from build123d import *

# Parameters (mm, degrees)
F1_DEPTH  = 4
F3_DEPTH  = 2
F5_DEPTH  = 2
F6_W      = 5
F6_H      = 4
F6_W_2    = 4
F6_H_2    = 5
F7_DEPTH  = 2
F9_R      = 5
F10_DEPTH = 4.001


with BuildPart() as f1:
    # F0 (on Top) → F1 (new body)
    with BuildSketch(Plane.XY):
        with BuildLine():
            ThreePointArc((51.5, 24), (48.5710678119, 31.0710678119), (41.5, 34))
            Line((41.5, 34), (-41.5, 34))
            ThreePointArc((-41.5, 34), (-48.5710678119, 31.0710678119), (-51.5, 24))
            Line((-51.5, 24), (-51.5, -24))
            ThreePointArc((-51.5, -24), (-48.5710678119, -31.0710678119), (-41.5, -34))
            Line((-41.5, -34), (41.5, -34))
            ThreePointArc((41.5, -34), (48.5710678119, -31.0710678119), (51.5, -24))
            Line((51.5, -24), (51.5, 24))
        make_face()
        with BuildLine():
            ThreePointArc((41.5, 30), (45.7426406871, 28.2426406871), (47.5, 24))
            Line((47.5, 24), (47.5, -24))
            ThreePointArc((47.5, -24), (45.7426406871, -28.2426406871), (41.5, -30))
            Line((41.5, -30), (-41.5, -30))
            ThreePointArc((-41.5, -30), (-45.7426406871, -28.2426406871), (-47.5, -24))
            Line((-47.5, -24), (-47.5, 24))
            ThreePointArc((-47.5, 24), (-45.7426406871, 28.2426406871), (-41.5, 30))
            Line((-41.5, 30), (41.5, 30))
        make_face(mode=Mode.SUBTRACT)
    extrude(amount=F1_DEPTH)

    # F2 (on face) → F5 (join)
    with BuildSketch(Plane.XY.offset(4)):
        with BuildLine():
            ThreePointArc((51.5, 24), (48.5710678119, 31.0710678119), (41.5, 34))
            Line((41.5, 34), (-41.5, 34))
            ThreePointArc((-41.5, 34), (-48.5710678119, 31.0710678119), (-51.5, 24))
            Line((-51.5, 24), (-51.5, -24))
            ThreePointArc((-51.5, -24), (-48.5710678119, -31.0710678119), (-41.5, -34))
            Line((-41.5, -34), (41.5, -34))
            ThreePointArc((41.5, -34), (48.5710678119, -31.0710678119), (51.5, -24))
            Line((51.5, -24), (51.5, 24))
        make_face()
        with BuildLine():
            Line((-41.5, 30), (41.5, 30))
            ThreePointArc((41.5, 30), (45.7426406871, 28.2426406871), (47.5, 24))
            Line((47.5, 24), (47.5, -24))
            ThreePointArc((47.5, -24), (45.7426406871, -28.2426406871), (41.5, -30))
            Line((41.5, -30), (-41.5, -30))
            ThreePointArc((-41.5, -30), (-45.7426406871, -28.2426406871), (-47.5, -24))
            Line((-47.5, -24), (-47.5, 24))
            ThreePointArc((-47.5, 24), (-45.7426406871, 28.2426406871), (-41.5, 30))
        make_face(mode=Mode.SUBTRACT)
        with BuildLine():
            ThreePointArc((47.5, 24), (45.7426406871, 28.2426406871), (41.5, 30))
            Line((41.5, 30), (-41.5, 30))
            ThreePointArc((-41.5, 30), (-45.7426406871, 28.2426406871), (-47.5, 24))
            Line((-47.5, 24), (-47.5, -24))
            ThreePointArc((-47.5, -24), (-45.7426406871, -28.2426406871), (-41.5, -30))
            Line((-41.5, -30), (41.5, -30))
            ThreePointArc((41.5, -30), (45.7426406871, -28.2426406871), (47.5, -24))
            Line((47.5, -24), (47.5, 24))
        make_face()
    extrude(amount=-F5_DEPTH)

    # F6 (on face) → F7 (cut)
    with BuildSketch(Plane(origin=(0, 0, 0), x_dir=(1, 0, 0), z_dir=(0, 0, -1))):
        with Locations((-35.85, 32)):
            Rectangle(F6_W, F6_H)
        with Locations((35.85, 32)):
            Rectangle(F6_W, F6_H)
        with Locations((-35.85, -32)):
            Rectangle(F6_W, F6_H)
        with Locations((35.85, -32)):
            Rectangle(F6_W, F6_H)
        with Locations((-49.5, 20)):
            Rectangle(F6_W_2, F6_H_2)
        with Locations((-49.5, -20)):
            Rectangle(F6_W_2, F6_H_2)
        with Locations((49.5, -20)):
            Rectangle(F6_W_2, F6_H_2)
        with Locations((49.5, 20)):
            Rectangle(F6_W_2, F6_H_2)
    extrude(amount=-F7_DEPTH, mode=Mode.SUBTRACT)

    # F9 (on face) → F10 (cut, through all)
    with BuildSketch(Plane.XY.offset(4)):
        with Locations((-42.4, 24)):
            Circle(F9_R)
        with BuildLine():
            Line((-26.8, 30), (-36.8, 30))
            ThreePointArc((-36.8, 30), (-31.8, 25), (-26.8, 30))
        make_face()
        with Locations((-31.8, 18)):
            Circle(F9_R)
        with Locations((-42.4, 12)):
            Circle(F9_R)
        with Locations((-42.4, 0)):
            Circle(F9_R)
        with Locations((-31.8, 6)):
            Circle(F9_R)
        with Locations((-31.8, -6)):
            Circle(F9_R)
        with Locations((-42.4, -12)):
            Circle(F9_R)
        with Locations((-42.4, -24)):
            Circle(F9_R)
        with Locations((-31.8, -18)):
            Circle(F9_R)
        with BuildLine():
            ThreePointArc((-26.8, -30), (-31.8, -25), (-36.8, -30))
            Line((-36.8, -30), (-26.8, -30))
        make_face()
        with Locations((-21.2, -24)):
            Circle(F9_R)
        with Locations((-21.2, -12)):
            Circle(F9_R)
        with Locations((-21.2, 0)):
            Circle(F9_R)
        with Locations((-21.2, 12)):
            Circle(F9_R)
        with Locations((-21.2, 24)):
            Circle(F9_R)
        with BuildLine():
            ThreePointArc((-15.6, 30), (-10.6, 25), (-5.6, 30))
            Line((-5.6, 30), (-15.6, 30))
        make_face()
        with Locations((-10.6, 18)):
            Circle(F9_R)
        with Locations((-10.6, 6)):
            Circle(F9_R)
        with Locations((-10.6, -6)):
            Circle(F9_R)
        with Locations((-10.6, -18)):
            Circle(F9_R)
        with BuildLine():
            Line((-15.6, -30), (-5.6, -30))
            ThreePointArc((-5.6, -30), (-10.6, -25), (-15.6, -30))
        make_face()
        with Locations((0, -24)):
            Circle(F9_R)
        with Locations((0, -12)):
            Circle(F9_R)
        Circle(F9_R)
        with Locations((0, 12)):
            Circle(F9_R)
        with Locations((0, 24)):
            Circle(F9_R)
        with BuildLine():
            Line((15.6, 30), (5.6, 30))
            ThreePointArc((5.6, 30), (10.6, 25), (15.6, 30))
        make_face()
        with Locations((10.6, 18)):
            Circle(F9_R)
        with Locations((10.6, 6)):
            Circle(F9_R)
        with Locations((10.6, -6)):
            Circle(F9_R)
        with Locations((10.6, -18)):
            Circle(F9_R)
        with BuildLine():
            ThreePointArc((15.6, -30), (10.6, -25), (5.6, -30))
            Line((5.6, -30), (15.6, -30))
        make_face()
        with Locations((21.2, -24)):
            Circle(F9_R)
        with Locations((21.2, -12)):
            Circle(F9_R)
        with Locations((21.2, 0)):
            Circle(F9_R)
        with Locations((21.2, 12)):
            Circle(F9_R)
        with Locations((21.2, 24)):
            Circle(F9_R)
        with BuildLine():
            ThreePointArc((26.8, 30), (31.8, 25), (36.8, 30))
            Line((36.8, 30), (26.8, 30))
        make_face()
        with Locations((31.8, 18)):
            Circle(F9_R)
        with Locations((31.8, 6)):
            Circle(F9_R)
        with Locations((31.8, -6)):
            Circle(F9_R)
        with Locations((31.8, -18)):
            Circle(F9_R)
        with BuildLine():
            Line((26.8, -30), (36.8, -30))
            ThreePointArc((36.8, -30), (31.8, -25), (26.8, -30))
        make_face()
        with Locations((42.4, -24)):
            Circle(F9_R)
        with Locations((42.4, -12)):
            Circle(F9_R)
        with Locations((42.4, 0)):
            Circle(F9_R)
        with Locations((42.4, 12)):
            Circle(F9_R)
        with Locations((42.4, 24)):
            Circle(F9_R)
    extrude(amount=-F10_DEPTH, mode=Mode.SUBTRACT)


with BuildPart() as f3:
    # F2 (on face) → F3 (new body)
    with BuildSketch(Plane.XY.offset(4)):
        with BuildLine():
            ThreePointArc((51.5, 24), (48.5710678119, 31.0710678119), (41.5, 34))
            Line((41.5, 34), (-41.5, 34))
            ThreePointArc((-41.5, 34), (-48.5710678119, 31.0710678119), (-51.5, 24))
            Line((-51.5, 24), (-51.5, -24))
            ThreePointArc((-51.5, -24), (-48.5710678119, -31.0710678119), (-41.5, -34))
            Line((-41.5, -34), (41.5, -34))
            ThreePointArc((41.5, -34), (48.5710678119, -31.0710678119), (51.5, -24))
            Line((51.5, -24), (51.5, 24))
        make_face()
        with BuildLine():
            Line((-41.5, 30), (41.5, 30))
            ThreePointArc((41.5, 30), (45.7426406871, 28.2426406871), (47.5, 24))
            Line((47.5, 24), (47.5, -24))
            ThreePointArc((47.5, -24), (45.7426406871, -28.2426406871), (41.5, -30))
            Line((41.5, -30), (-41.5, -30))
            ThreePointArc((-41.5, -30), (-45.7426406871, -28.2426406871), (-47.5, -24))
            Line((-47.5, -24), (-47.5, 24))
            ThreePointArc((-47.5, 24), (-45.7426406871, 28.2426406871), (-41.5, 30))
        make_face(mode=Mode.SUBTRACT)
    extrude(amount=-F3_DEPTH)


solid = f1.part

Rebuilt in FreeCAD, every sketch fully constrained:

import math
import FreeCAD as App
import Part
import Sketcher
Q = App.Units.Quantity


def add_polygon(sketch, points):
    """Adds a closed chain of lines whose ends are joined by coincident constraints."""
    first, n = sketch.GeometryCount, len(points)
    for a, b in zip(points, points[1:] + points[:1]):
        sketch.addGeometry(Part.LineSegment(App.Vector(*a, 0), App.Vector(*b, 0)), False)
    for i in range(n):
        sketch.addConstraint(Sketcher.Constraint("Coincident", first + i, 2, first + (i + 1) % n, 1))

doc = App.newDocument("Part")
body = doc.addObject("PartDesign::Body", "Body")

# Sketch on XY plane
sketch1 = body.newObject("Sketcher::SketchObject", "Sketch")
sketch1.AttachmentSupport = (doc.getObject("XY_Plane"), [""])
sketch1.MapMode = "FlatFace"
sketch1.addGeometry(Part.ArcOfCircle(Part.Circle(App.Vector(42, 24, 0), App.Vector(0, 0, 1), 10), math.radians(0), math.radians(90)), False)
sketch1.addGeometry(Part.LineSegment(App.Vector(42, 34, 0), App.Vector(-42, 34, 0)), False)
sketch1.addGeometry(Part.ArcOfCircle(Part.Circle(App.Vector(-42, 24, 0), App.Vector(0, 0, 1), 10), math.radians(90), math.radians(180)), False)
sketch1.addGeometry(Part.LineSegment(App.Vector(-52, 24, 0), App.Vector(-52, -24, 0)), False)
sketch1.addGeometry(Part.ArcOfCircle(Part.Circle(App.Vector(-42, -24, 0), App.Vector(0, 0, 1), 10), math.radians(180), math.radians(270)), False)
sketch1.addGeometry(Part.LineSegment(App.Vector(-42, -34, 0), App.Vector(42, -34, 0)), False)
sketch1.addGeometry(Part.ArcOfCircle(Part.Circle(App.Vector(42, -24, 0), App.Vector(0, 0, 1), 10), math.radians(-90), math.radians(0)), False)
sketch1.addGeometry(Part.LineSegment(App.Vector(52, -24, 0), App.Vector(52, 24, 0)), False)
sketch1.addGeometry(Part.LineSegment(App.Vector(-42, 30, 0), App.Vector(42, 30, 0)), False)
sketch1.addGeometry(Part.ArcOfCircle(Part.Circle(App.Vector(42, 24, 0), App.Vector(0, 0, 1), 6), math.radians(0), math.radians(90)), False)
sketch1.addGeometry(Part.LineSegment(App.Vector(48, 24, 0), App.Vector(48, -24, 0)), False)
sketch1.addGeometry(Part.ArcOfCircle(Part.Circle(App.Vector(42, -24, 0), App.Vector(0, 0, 1), 6), math.radians(-90), math.radians(0)), False)
sketch1.addGeometry(Part.LineSegment(App.Vector(42, -30, 0), App.Vector(-42, -30, 0)), False)
sketch1.addGeometry(Part.ArcOfCircle(Part.Circle(App.Vector(-42, -24, 0), App.Vector(0, 0, 1), 6), math.radians(180), math.radians(270)), False)
sketch1.addGeometry(Part.LineSegment(App.Vector(-48, -24, 0), App.Vector(-48, 24, 0)), False)
sketch1.addGeometry(Part.ArcOfCircle(Part.Circle(App.Vector(-42, 24, 0), App.Vector(0, 0, 1), 6), math.radians(90), math.radians(180)), False)
sketch1.addConstraint(Sketcher.Constraint("Tangent", 0, 2, 1, 1))
sketch1.addConstraint(Sketcher.Constraint("Tangent", 1, 2, 2, 1))
sketch1.addConstraint(Sketcher.Constraint("Tangent", 2, 2, 3, 1))
sketch1.addConstraint(Sketcher.Constraint("Tangent", 3, 2, 4, 1))
sketch1.addConstraint(Sketcher.Constraint("Tangent", 4, 2, 5, 1))
sketch1.addConstraint(Sketcher.Constraint("Tangent", 5, 2, 6, 1))
sketch1.addConstraint(Sketcher.Constraint("Tangent", 6, 2, 7, 1))
sketch1.addConstraint(Sketcher.Constraint("Tangent", 7, 2, 0, 1))
sketch1.addConstraint(Sketcher.Constraint("Tangent", 8, 2, 9, 2))
sketch1.addConstraint(Sketcher.Constraint("Tangent", 9, 1, 10, 1))
sketch1.addConstraint(Sketcher.Constraint("Tangent", 10, 2, 11, 2))
sketch1.addConstraint(Sketcher.Constraint("Tangent", 11, 1, 12, 1))
sketch1.addConstraint(Sketcher.Constraint("Tangent", 12, 2, 13, 2))
sketch1.addConstraint(Sketcher.Constraint("Tangent", 13, 1, 14, 1))
sketch1.addConstraint(Sketcher.Constraint("Tangent", 14, 2, 15, 2))
sketch1.addConstraint(Sketcher.Constraint("Tangent", 15, 1, 8, 1))
sketch1.addConstraint(Sketcher.Constraint("Horizontal", 1))
sketch1.addConstraint(Sketcher.Constraint("Vertical", 3))
sketch1.addConstraint(Sketcher.Constraint("Horizontal", 5))
sketch1.addConstraint(Sketcher.Constraint("Vertical", 7))
sketch1.addConstraint(Sketcher.Constraint("Horizontal", 8))
sketch1.addConstraint(Sketcher.Constraint("Vertical", 10))
sketch1.addConstraint(Sketcher.Constraint("Horizontal", 12))
sketch1.addConstraint(Sketcher.Constraint("Vertical", 14))
sketch1.addConstraint(Sketcher.Constraint("Coincident", 9, 3, 0, 3))
sketch1.addConstraint(Sketcher.Constraint("Coincident", 11, 3, 6, 3))
sketch1.addConstraint(Sketcher.Constraint("Coincident", 13, 3, 4, 3))
sketch1.addConstraint(Sketcher.Constraint("Equal", 0, 2))
sketch1.addConstraint(Sketcher.Constraint("Equal", 2, 4))
sketch1.addConstraint(Sketcher.Constraint("Equal", 4, 6))
sketch1.addConstraint(Sketcher.Constraint("Equal", 13, 15))
sketch1.addConstraint(Sketcher.Constraint("Symmetric", 0, 3, 4, 3, -1, 1))
sketch1.addConstraint(Sketcher.Constraint("Radius", 0, Q("10 mm")))
sketch1.addConstraint(Sketcher.Constraint("Radius", 9, Q("6 mm")))
sketch1.addConstraint(Sketcher.Constraint("DistanceX", 1, 2, 1, 1, Q("83 mm")))
sketch1.addConstraint(Sketcher.Constraint("DistanceY", 3, 2, 3, 1, Q("48 mm")))
pad1 = body.newObject("PartDesign::Pad", "Pad")
pad1.Profile = sketch1
pad1.Length = 4

# Sketch on XY plane
sketch2 = body.newObject("Sketcher::SketchObject", "Sketch001")
sketch2.AttachmentSupport = (doc.getObject("XY_Plane"), [""])
sketch2.MapMode = "FlatFace"
sketch2.AttachmentOffset = App.Placement(App.Vector(0, 0, 4), App.Rotation())
sketch2.addGeometry(Part.ArcOfCircle(Part.Circle(App.Vector(42, 24, 0), App.Vector(0, 0, 1), 10), math.radians(0), math.radians(90)), False)
sketch2.addGeometry(Part.LineSegment(App.Vector(42, 34, 0), App.Vector(-42, 34, 0)), False)
sketch2.addGeometry(Part.ArcOfCircle(Part.Circle(App.Vector(-42, 24, 0), App.Vector(0, 0, 1), 10), math.radians(90), math.radians(180)), False)
sketch2.addGeometry(Part.LineSegment(App.Vector(-52, 24, 0), App.Vector(-52, -24, 0)), False)
sketch2.addGeometry(Part.ArcOfCircle(Part.Circle(App.Vector(-42, -24, 0), App.Vector(0, 0, 1), 10), math.radians(180), math.radians(270)), False)
sketch2.addGeometry(Part.LineSegment(App.Vector(-42, -34, 0), App.Vector(42, -34, 0)), False)
sketch2.addGeometry(Part.ArcOfCircle(Part.Circle(App.Vector(42, -24, 0), App.Vector(0, 0, 1), 10), math.radians(-90), math.radians(0)), False)
sketch2.addGeometry(Part.LineSegment(App.Vector(52, -24, 0), App.Vector(52, 24, 0)), False)
sketch2.addConstraint(Sketcher.Constraint("Tangent", 0, 2, 1, 1))
sketch2.addConstraint(Sketcher.Constraint("Tangent", 1, 2, 2, 1))
sketch2.addConstraint(Sketcher.Constraint("Tangent", 2, 2, 3, 1))
sketch2.addConstraint(Sketcher.Constraint("Tangent", 3, 2, 4, 1))
sketch2.addConstraint(Sketcher.Constraint("Tangent", 4, 2, 5, 1))
sketch2.addConstraint(Sketcher.Constraint("Tangent", 5, 2, 6, 1))
sketch2.addConstraint(Sketcher.Constraint("Tangent", 6, 2, 7, 1))
sketch2.addConstraint(Sketcher.Constraint("Tangent", 7, 2, 0, 1))
sketch2.addConstraint(Sketcher.Constraint("Horizontal", 1))
sketch2.addConstraint(Sketcher.Constraint("Vertical", 3))
sketch2.addConstraint(Sketcher.Constraint("Horizontal", 5))
sketch2.addConstraint(Sketcher.Constraint("Vertical", 7))
sketch2.addConstraint(Sketcher.Constraint("Equal", 0, 2))
sketch2.addConstraint(Sketcher.Constraint("Equal", 2, 4))
sketch2.addConstraint(Sketcher.Constraint("Equal", 4, 6))
sketch2.addConstraint(Sketcher.Constraint("Symmetric", 0, 3, 4, 3, -1, 1))
sketch2.addConstraint(Sketcher.Constraint("Radius", 0, Q("10 mm")))
sketch2.addConstraint(Sketcher.Constraint("DistanceX", 1, 2, 1, 1, Q("83 mm")))
sketch2.addConstraint(Sketcher.Constraint("DistanceY", 3, 2, 3, 1, Q("48 mm")))
pad2 = body.newObject("PartDesign::Pad", "Pad001")
pad2.Profile = sketch2
pad2.Length = 2
pad2.Reversed = True

# Sketch on XY plane
sketch3 = body.newObject("Sketcher::SketchObject", "Sketch002")
sketch3.AttachmentSupport = (doc.getObject("XY_Plane"), [""])
sketch3.MapMode = "FlatFace"
add_polygon(sketch3, [(-38.4, -34), (-38.4, -30), (-33.4, -30), (-33.4, -34)])  # lines 0-3
add_polygon(sketch3, [(33.4, -34), (33.4, -30), (38.4, -30), (38.4, -34)])  # lines 4-7
add_polygon(sketch3, [(-38.4, 30), (-38.4, 34), (-33.4, 34), (-33.4, 30)])  # lines 8-11
add_polygon(sketch3, [(33.4, 30), (33.4, 34), (38.4, 34), (38.4, 30)])  # lines 12-15
add_polygon(sketch3, [(-51.5, -22.5), (-51.5, -17.5), (-47.5, -17.5), (-47.5, -22.5)])  # lines 16-19
add_polygon(sketch3, [(-51.5, 17.5), (-51.5, 22.5), (-47.5, 22.5), (-47.5, 17.5)])  # lines 20-23
add_polygon(sketch3, [(47.5, 17.5), (47.5, 22.5), (51.5, 22.5), (51.5, 17.5)])  # lines 24-27
add_polygon(sketch3, [(47.5, -22.5), (47.5, -17.5), (51.5, -17.5), (51.5, -22.5)])  # lines 28-31
sketch3.addConstraint(Sketcher.Constraint("Vertical", 0))
sketch3.addConstraint(Sketcher.Constraint("Horizontal", 1))
sketch3.addConstraint(Sketcher.Constraint("Vertical", 2))
sketch3.addConstraint(Sketcher.Constraint("Horizontal", 3))
sketch3.addConstraint(Sketcher.Constraint("Vertical", 4))
sketch3.addConstraint(Sketcher.Constraint("Horizontal", 5))
sketch3.addConstraint(Sketcher.Constraint("Vertical", 6))
sketch3.addConstraint(Sketcher.Constraint("Horizontal", 7))
sketch3.addConstraint(Sketcher.Constraint("Vertical", 8))
sketch3.addConstraint(Sketcher.Constraint("Horizontal", 9))
sketch3.addConstraint(Sketcher.Constraint("Vertical", 10))
sketch3.addConstraint(Sketcher.Constraint("Horizontal", 11))
sketch3.addConstraint(Sketcher.Constraint("Vertical", 12))
sketch3.addConstraint(Sketcher.Constraint("Horizontal", 13))
sketch3.addConstraint(Sketcher.Constraint("Vertical", 14))
sketch3.addConstraint(Sketcher.Constraint("Horizontal", 15))
sketch3.addConstraint(Sketcher.Constraint("Vertical", 16))
sketch3.addConstraint(Sketcher.Constraint("Horizontal", 17))
sketch3.addConstraint(Sketcher.Constraint("Vertical", 18))
sketch3.addConstraint(Sketcher.Constraint("Horizontal", 19))
sketch3.addConstraint(Sketcher.Constraint("Vertical", 20))
sketch3.addConstraint(Sketcher.Constraint("Horizontal", 21))
sketch3.addConstraint(Sketcher.Constraint("Vertical", 22))
sketch3.addConstraint(Sketcher.Constraint("Horizontal", 23))
sketch3.addConstraint(Sketcher.Constraint("Vertical", 24))
sketch3.addConstraint(Sketcher.Constraint("Horizontal", 25))
sketch3.addConstraint(Sketcher.Constraint("Vertical", 26))
sketch3.addConstraint(Sketcher.Constraint("Horizontal", 27))
sketch3.addConstraint(Sketcher.Constraint("Vertical", 28))
sketch3.addConstraint(Sketcher.Constraint("Horizontal", 29))
sketch3.addConstraint(Sketcher.Constraint("Vertical", 30))
sketch3.addConstraint(Sketcher.Constraint("Horizontal", 31))
sketch3.addConstraint(Sketcher.Constraint("Symmetric", 6, 2, 8, 2, -1, 1))
sketch3.addConstraint(Sketcher.Constraint("Symmetric", 4, 2, 10, 2, -1, 1))
sketch3.addConstraint(Sketcher.Constraint("Symmetric", 2, 2, 12, 2, -1, 1))
sketch3.addConstraint(Sketcher.Constraint("Symmetric", 0, 2, 14, 2, -1, 1))
sketch3.addConstraint(Sketcher.Constraint("Symmetric", 18, 2, 24, 2, -1, 1))
sketch3.addConstraint(Sketcher.Constraint("Symmetric", 16, 2, 26, 2, -1, 1))
sketch3.addConstraint(Sketcher.Constraint("Symmetric", 22, 2, 28, 2, -1, 1))
sketch3.addConstraint(Sketcher.Constraint("Symmetric", 20, 2, 30, 2, -1, 1))
sketch3.addConstraint(Sketcher.Constraint("Symmetric", 1, 2, 4, 2, -2))
sketch3.addConstraint(Sketcher.Constraint("Symmetric", 3, 2, 6, 2, -2))
sketch3.addConstraint(Sketcher.Constraint("Symmetric", 21, 2, 24, 2, -2))
sketch3.addConstraint(Sketcher.Constraint("Symmetric", 23, 2, 26, 2, -2))
sketch3.addConstraint(Sketcher.Constraint("Equal", 31, 0))
sketch3.addConstraint(Sketcher.Constraint("Equal", 15, 16))
sketch3.addConstraint(Sketcher.Constraint("DistanceX", 1, 1, 1, 2, Q("5 mm")))
sketch3.addConstraint(Sketcher.Constraint("DistanceX", 17, 1, 17, 2, Q("4 mm")))
sketch3.addConstraint(Sketcher.Constraint("DistanceY", 0, 2, -1, 1, Q("30 mm")))
sketch3.addConstraint(Sketcher.Constraint("DistanceY", 16, 2, 20, 2, Q("40 mm")))
sketch3.addConstraint(Sketcher.Constraint("DistanceX", 16, 2, -1, 1, Q("51.5 mm")))
sketch3.addConstraint(Sketcher.Constraint("DistanceX", 1, 2, 4, 2, Q("66.7 mm")))
pocket1 = body.newObject("PartDesign::Pocket", "Pocket")
pocket1.Profile = sketch3
pocket1.Length = 2
pocket1.Reversed = True

# Sketch on XY plane
sketch4 = body.newObject("Sketcher::SketchObject", "Sketch003")
sketch4.AttachmentSupport = (doc.getObject("XY_Plane"), [""])
sketch4.MapMode = "FlatFace"
sketch4.AttachmentOffset = App.Placement(App.Vector(0, 0, 4), App.Rotation())
sketch4.addGeometry(Part.Circle(App.Vector(-42, 24, 0), App.Vector(0, 0, 1), 5), False)
sketch4.addGeometry(Part.LineSegment(App.Vector(-27, 30, 0), App.Vector(-37, 30, 0)), False)
sketch4.addGeometry(Part.ArcOfCircle(Part.Circle(App.Vector(-32, 30, 0), App.Vector(0, 0, 1), 5), math.radians(180), math.radians(360)), False)
sketch4.addGeometry(Part.Circle(App.Vector(-32, 18, 0), App.Vector(0, 0, 1), 5), False)
sketch4.addGeometry(Part.Circle(App.Vector(-42, 12, 0), App.Vector(0, 0, 1), 5), False)
sketch4.addGeometry(Part.Circle(App.Vector(-42, 0, 0), App.Vector(0, 0, 1), 5), False)
sketch4.addGeometry(Part.Circle(App.Vector(-32, 6, 0), App.Vector(0, 0, 1), 5), False)
sketch4.addGeometry(Part.Circle(App.Vector(-32, -6, 0), App.Vector(0, 0, 1), 5), False)
sketch4.addGeometry(Part.Circle(App.Vector(-42, -12, 0), App.Vector(0, 0, 1), 5), False)
sketch4.addGeometry(Part.Circle(App.Vector(-42, -24, 0), App.Vector(0, 0, 1), 5), False)
sketch4.addGeometry(Part.Circle(App.Vector(-32, -18, 0), App.Vector(0, 0, 1), 5), False)
sketch4.addGeometry(Part.ArcOfCircle(Part.Circle(App.Vector(-32, -30, 0), App.Vector(0, 0, 1), 5), math.radians(0), math.radians(180)), False)
sketch4.addGeometry(Part.LineSegment(App.Vector(-37, -30, 0), App.Vector(-27, -30, 0)), False)
sketch4.addGeometry(Part.Circle(App.Vector(-21, -24, 0), App.Vector(0, 0, 1), 5), False)
sketch4.addGeometry(Part.Circle(App.Vector(-21, -12, 0), App.Vector(0, 0, 1), 5), False)
sketch4.addGeometry(Part.Circle(App.Vector(-21, 0, 0), App.Vector(0, 0, 1), 5), False)
sketch4.addGeometry(Part.Circle(App.Vector(-21, 12, 0), App.Vector(0, 0, 1), 5), False)
sketch4.addGeometry(Part.Circle(App.Vector(-21, 24, 0), App.Vector(0, 0, 1), 5), False)
sketch4.addGeometry(Part.ArcOfCircle(Part.Circle(App.Vector(-11, 30, 0), App.Vector(0, 0, 1), 5), math.radians(180), math.radians(360)), False)
sketch4.addGeometry(Part.LineSegment(App.Vector(-6, 30, 0), App.Vector(-16, 30, 0)), False)
sketch4.addGeometry(Part.Circle(App.Vector(-11, 18, 0), App.Vector(0, 0, 1), 5), False)
sketch4.addGeometry(Part.Circle(App.Vector(-11, 6, 0), App.Vector(0, 0, 1), 5), False)
sketch4.addGeometry(Part.Circle(App.Vector(-11, -6, 0), App.Vector(0, 0, 1), 5), False)
sketch4.addGeometry(Part.Circle(App.Vector(-11, -18, 0), App.Vector(0, 0, 1), 5), False)
sketch4.addGeometry(Part.LineSegment(App.Vector(-16, -30, 0), App.Vector(-6, -30, 0)), False)
sketch4.addGeometry(Part.ArcOfCircle(Part.Circle(App.Vector(-11, -30, 0), App.Vector(0, 0, 1), 5), math.radians(0), math.radians(180)), False)
sketch4.addGeometry(Part.Circle(App.Vector(0, -24, 0), App.Vector(0, 0, 1), 5), False)
sketch4.addGeometry(Part.Circle(App.Vector(0, -12, 0), App.Vector(0, 0, 1), 5), False)
sketch4.addGeometry(Part.Circle(App.Vector(0, 0, 0), App.Vector(0, 0, 1), 5), False)
sketch4.addGeometry(Part.Circle(App.Vector(0, 12, 0), App.Vector(0, 0, 1), 5), False)
sketch4.addGeometry(Part.Circle(App.Vector(0, 24, 0), App.Vector(0, 0, 1), 5), False)
sketch4.addGeometry(Part.LineSegment(App.Vector(16, 30, 0), App.Vector(6, 30, 0)), False)
sketch4.addGeometry(Part.ArcOfCircle(Part.Circle(App.Vector(11, 30, 0), App.Vector(0, 0, 1), 5), math.radians(180), math.radians(360)), False)
sketch4.addGeometry(Part.Circle(App.Vector(11, 18, 0), App.Vector(0, 0, 1), 5), False)
sketch4.addGeometry(Part.Circle(App.Vector(11, 6, 0), App.Vector(0, 0, 1), 5), False)
sketch4.addGeometry(Part.Circle(App.Vector(11, -6, 0), App.Vector(0, 0, 1), 5), False)
sketch4.addGeometry(Part.Circle(App.Vector(11, -18, 0), App.Vector(0, 0, 1), 5), False)
sketch4.addGeometry(Part.ArcOfCircle(Part.Circle(App.Vector(11, -30, 0), App.Vector(0, 0, 1), 5), math.radians(0), math.radians(180)), False)
sketch4.addGeometry(Part.LineSegment(App.Vector(6, -30, 0), App.Vector(16, -30, 0)), False)
sketch4.addGeometry(Part.Circle(App.Vector(21, -24, 0), App.Vector(0, 0, 1), 5), False)
sketch4.addGeometry(Part.Circle(App.Vector(21, -12, 0), App.Vector(0, 0, 1), 5), False)
sketch4.addGeometry(Part.Circle(App.Vector(21, 0, 0), App.Vector(0, 0, 1), 5), False)
sketch4.addGeometry(Part.Circle(App.Vector(21, 12, 0), App.Vector(0, 0, 1), 5), False)
sketch4.addGeometry(Part.Circle(App.Vector(21, 24, 0), App.Vector(0, 0, 1), 5), False)
sketch4.addGeometry(Part.ArcOfCircle(Part.Circle(App.Vector(32, 30, 0), App.Vector(0, 0, 1), 5), math.radians(180), math.radians(360)), False)
sketch4.addGeometry(Part.LineSegment(App.Vector(37, 30, 0), App.Vector(27, 30, 0)), False)
sketch4.addGeometry(Part.Circle(App.Vector(32, 18, 0), App.Vector(0, 0, 1), 5), False)
sketch4.addGeometry(Part.Circle(App.Vector(32, 6, 0), App.Vector(0, 0, 1), 5), False)
sketch4.addGeometry(Part.Circle(App.Vector(32, -6, 0), App.Vector(0, 0, 1), 5), False)
sketch4.addGeometry(Part.Circle(App.Vector(32, -18, 0), App.Vector(0, 0, 1), 5), False)
sketch4.addGeometry(Part.LineSegment(App.Vector(27, -30, 0), App.Vector(37, -30, 0)), False)
sketch4.addGeometry(Part.ArcOfCircle(Part.Circle(App.Vector(32, -30, 0), App.Vector(0, 0, 1), 5), math.radians(0), math.radians(180)), False)
sketch4.addGeometry(Part.Circle(App.Vector(42, -24, 0), App.Vector(0, 0, 1), 5), False)
sketch4.addGeometry(Part.Circle(App.Vector(42, -12, 0), App.Vector(0, 0, 1), 5), False)
sketch4.addGeometry(Part.Circle(App.Vector(42, 0, 0), App.Vector(0, 0, 1), 5), False)
sketch4.addGeometry(Part.Circle(App.Vector(42, 12, 0), App.Vector(0, 0, 1), 5), False)
sketch4.addGeometry(Part.Circle(App.Vector(42, 24, 0), App.Vector(0, 0, 1), 5), False)
sketch4.addConstraint(Sketcher.Constraint("Coincident", 1, 1, 2, 2))
sketch4.addConstraint(Sketcher.Constraint("Coincident", 2, 1, 1, 2))
sketch4.addConstraint(Sketcher.Constraint("Coincident", 11, 1, 12, 2))
sketch4.addConstraint(Sketcher.Constraint("Coincident", 12, 1, 11, 2))
sketch4.addConstraint(Sketcher.Constraint("Coincident", 18, 1, 19, 2))
sketch4.addConstraint(Sketcher.Constraint("Coincident", 19, 1, 18, 2))
sketch4.addConstraint(Sketcher.Constraint("Coincident", 24, 1, 25, 2))
sketch4.addConstraint(Sketcher.Constraint("Coincident", 25, 1, 24, 2))
sketch4.addConstraint(Sketcher.Constraint("Coincident", 31, 1, 32, 2))
sketch4.addConstraint(Sketcher.Constraint("Coincident", 32, 1, 31, 2))
sketch4.addConstraint(Sketcher.Constraint("Coincident", 37, 1, 38, 2))
sketch4.addConstraint(Sketcher.Constraint("Coincident", 38, 1, 37, 2))
sketch4.addConstraint(Sketcher.Constraint("Coincident", 44, 1, 45, 2))
sketch4.addConstraint(Sketcher.Constraint("Coincident", 45, 1, 44, 2))
sketch4.addConstraint(Sketcher.Constraint("Coincident", 50, 1, 51, 2))
sketch4.addConstraint(Sketcher.Constraint("Coincident", 51, 1, 50, 2))
sketch4.addConstraint(Sketcher.Constraint("Horizontal", 1))
sketch4.addConstraint(Sketcher.Constraint("Horizontal", 12))
sketch4.addConstraint(Sketcher.Constraint("Horizontal", 19))
sketch4.addConstraint(Sketcher.Constraint("Horizontal", 24))
sketch4.addConstraint(Sketcher.Constraint("Horizontal", 31))
sketch4.addConstraint(Sketcher.Constraint("Horizontal", 38))
sketch4.addConstraint(Sketcher.Constraint("Horizontal", 45))
sketch4.addConstraint(Sketcher.Constraint("Horizontal", 50))
sketch4.addConstraint(Sketcher.Constraint("Coincident", 28, 3, -1, 1))
sketch4.addConstraint(Sketcher.Constraint("Equal", 0, 2))
sketch4.addConstraint(Sketcher.Constraint("Equal", 2, 3))
sketch4.addConstraint(Sketcher.Constraint("Equal", 3, 4))
sketch4.addConstraint(Sketcher.Constraint("Equal", 4, 5))
sketch4.addConstraint(Sketcher.Constraint("Equal", 5, 6))
sketch4.addConstraint(Sketcher.Constraint("Equal", 6, 7))
sketch4.addConstraint(Sketcher.Constraint("Equal", 7, 8))
sketch4.addConstraint(Sketcher.Constraint("Equal", 8, 9))
sketch4.addConstraint(Sketcher.Constraint("Equal", 9, 10))
sketch4.addConstraint(Sketcher.Constraint("Equal", 10, 11))
sketch4.addConstraint(Sketcher.Constraint("Equal", 11, 13))
sketch4.addConstraint(Sketcher.Constraint("Equal", 13, 14))
sketch4.addConstraint(Sketcher.Constraint("Equal", 14, 15))
sketch4.addConstraint(Sketcher.Constraint("Equal", 15, 16))
sketch4.addConstraint(Sketcher.Constraint("Equal", 16, 17))
sketch4.addConstraint(Sketcher.Constraint("Equal", 17, 18))
sketch4.addConstraint(Sketcher.Constraint("Equal", 18, 20))
sketch4.addConstraint(Sketcher.Constraint("Equal", 20, 21))
sketch4.addConstraint(Sketcher.Constraint("Equal", 21, 22))
sketch4.addConstraint(Sketcher.Constraint("Equal", 22, 23))
sketch4.addConstraint(Sketcher.Constraint("Equal", 23, 25))
sketch4.addConstraint(Sketcher.Constraint("Equal", 25, 26))
sketch4.addConstraint(Sketcher.Constraint("Equal", 26, 27))
sketch4.addConstraint(Sketcher.Constraint("Equal", 27, 28))
sketch4.addConstraint(Sketcher.Constraint("Equal", 28, 29))
sketch4.addConstraint(Sketcher.Constraint("Equal", 29, 30))
sketch4.addConstraint(Sketcher.Constraint("Equal", 30, 32))
sketch4.addConstraint(Sketcher.Constraint("Equal", 32, 33))
sketch4.addConstraint(Sketcher.Constraint("Equal", 33, 34))
sketch4.addConstraint(Sketcher.Constraint("Equal", 34, 35))
sketch4.addConstraint(Sketcher.Constraint("Equal", 35, 36))
sketch4.addConstraint(Sketcher.Constraint("Equal", 36, 37))
sketch4.addConstraint(Sketcher.Constraint("Equal", 37, 39))
sketch4.addConstraint(Sketcher.Constraint("Equal", 39, 40))
sketch4.addConstraint(Sketcher.Constraint("Equal", 40, 41))
sketch4.addConstraint(Sketcher.Constraint("Equal", 41, 42))
sketch4.addConstraint(Sketcher.Constraint("Equal", 42, 43))
sketch4.addConstraint(Sketcher.Constraint("Equal", 43, 44))
sketch4.addConstraint(Sketcher.Constraint("Equal", 44, 46))
sketch4.addConstraint(Sketcher.Constraint("Equal", 46, 47))
sketch4.addConstraint(Sketcher.Constraint("Equal", 47, 48))
sketch4.addConstraint(Sketcher.Constraint("Equal", 48, 49))
sketch4.addConstraint(Sketcher.Constraint("Equal", 49, 51))
sketch4.addConstraint(Sketcher.Constraint("Equal", 51, 52))
sketch4.addConstraint(Sketcher.Constraint("Equal", 52, 53))
sketch4.addConstraint(Sketcher.Constraint("Equal", 53, 54))
sketch4.addConstraint(Sketcher.Constraint("Equal", 54, 55))
sketch4.addConstraint(Sketcher.Constraint("Equal", 55, 56))
sketch4.addConstraint(Sketcher.Constraint("Symmetric", 27, 3, 29, 3, -1, 1))
sketch4.addConstraint(Sketcher.Constraint("Symmetric", 26, 3, 30, 3, -1, 1))
sketch4.addConstraint(Sketcher.Constraint("Symmetric", 25, 3, 32, 3, -1, 1))
sketch4.addConstraint(Sketcher.Constraint("Symmetric", 23, 3, 33, 3, -1, 1))
sketch4.addConstraint(Sketcher.Constraint("Symmetric", 22, 3, 34, 3, -1, 1))
sketch4.addConstraint(Sketcher.Constraint("Symmetric", 21, 3, 35, 3, -1, 1))
sketch4.addConstraint(Sketcher.Constraint("Symmetric", 20, 3, 36, 3, -1, 1))
sketch4.addConstraint(Sketcher.Constraint("Symmetric", 18, 3, 37, 3, -1, 1))
sketch4.addConstraint(Sketcher.Constraint("Symmetric", 17, 3, 39, 3, -1, 1))
sketch4.addConstraint(Sketcher.Constraint("Symmetric", 16, 3, 40, 3, -1, 1))
sketch4.addConstraint(Sketcher.Constraint("Symmetric", 15, 3, 41, 3, -1, 1))
sketch4.addConstraint(Sketcher.Constraint("Symmetric", 14, 3, 42, 3, -1, 1))
sketch4.addConstraint(Sketcher.Constraint("Symmetric", 13, 3, 43, 3, -1, 1))
sketch4.addConstraint(Sketcher.Constraint("Symmetric", 11, 3, 44, 3, -1, 1))
sketch4.addConstraint(Sketcher.Constraint("Symmetric", 10, 3, 46, 3, -1, 1))
sketch4.addConstraint(Sketcher.Constraint("Symmetric", 7, 3, 47, 3, -1, 1))
sketch4.addConstraint(Sketcher.Constraint("Symmetric", 6, 3, 48, 3, -1, 1))
sketch4.addConstraint(Sketcher.Constraint("Symmetric", 3, 3, 49, 3, -1, 1))
sketch4.addConstraint(Sketcher.Constraint("Symmetric", 2, 3, 51, 3, -1, 1))
sketch4.addConstraint(Sketcher.Constraint("Symmetric", 0, 3, 52, 3, -1, 1))
sketch4.addConstraint(Sketcher.Constraint("Symmetric", 4, 3, 53, 3, -1, 1))
sketch4.addConstraint(Sketcher.Constraint("Symmetric", 5, 3, 54, 3, -1, 1))
sketch4.addConstraint(Sketcher.Constraint("Symmetric", 8, 3, 55, 3, -1, 1))
sketch4.addConstraint(Sketcher.Constraint("Symmetric", 9, 3, 56, 3, -1, 1))
sketch4.addConstraint(Sketcher.Constraint("Symmetric", 18, 3, 32, 3, -2))
sketch4.addConstraint(Sketcher.Constraint("Symmetric", 20, 3, 33, 3, -2))
sketch4.addConstraint(Sketcher.Constraint("Symmetric", 21, 3, 34, 3, -2))
sketch4.addConstraint(Sketcher.Constraint("Symmetric", 13, 3, 39, 3, -2))
sketch4.addConstraint(Sketcher.Constraint("Symmetric", 14, 3, 40, 3, -2))
sketch4.addConstraint(Sketcher.Constraint("Symmetric", 2, 3, 44, 3, -2))
sketch4.addConstraint(Sketcher.Constraint("Symmetric", 3, 3, 46, 3, -2))
sketch4.addConstraint(Sketcher.Constraint("Symmetric", 6, 3, 47, 3, -2))
sketch4.addConstraint(Sketcher.Constraint("Symmetric", 9, 3, 52, 3, -2))
sketch4.addConstraint(Sketcher.Constraint("Symmetric", 8, 3, 53, 3, -2))
sketch4.addConstraint(Sketcher.Constraint("PointOnObject", 5, 3, -1))
sketch4.addConstraint(Sketcher.Constraint("PointOnObject", 15, 3, -1))
sketch4.addConstraint(Sketcher.Constraint("PointOnObject", 26, 3, -2))
sketch4.addConstraint(Sketcher.Constraint("PointOnObject", 27, 3, -2))
sketch4.addConstraint(Sketcher.Constraint("Horizontal", 9, 3, 13, 3))
sketch4.addConstraint(Sketcher.Constraint("Horizontal", 8, 3, 14, 3))
sketch4.addConstraint(Sketcher.Constraint("Horizontal", 2, 3, 18, 3))
sketch4.addConstraint(Sketcher.Constraint("Horizontal", 3, 3, 20, 3))
sketch4.addConstraint(Sketcher.Constraint("Horizontal", 6, 3, 21, 3))
sketch4.addConstraint(Sketcher.Constraint("Horizontal", 13, 3, 26, 3))
sketch4.addConstraint(Sketcher.Constraint("Horizontal", 14, 3, 27, 3))
sketch4.addConstraint(Sketcher.Constraint("Horizontal", 44, 3, 1, 1))
sketch4.addConstraint(Sketcher.Constraint("Horizontal", 51, 3, 11, 1))
sketch4.addConstraint(Sketcher.Constraint("Horizontal", 2, 1, 18, 1))
sketch4.addConstraint(Sketcher.Constraint("Horizontal", 12, 1, 24, 1))
sketch4.addConstraint(Sketcher.Constraint("Horizontal", 19, 1, 31, 1))
sketch4.addConstraint(Sketcher.Constraint("Horizontal", 25, 1, 37, 1))
sketch4.addConstraint(Sketcher.Constraint("Horizontal", 32, 1, 44, 1))
sketch4.addConstraint(Sketcher.Constraint("Horizontal", 38, 1, 50, 1))
sketch4.addConstraint(Sketcher.Constraint("Vertical", 2, 3, 3, 3))
sketch4.addConstraint(Sketcher.Constraint("Vertical", 0, 3, 4, 3))
sketch4.addConstraint(Sketcher.Constraint("Vertical", 4, 3, 5, 3))
sketch4.addConstraint(Sketcher.Constraint("Vertical", 3, 3, 6, 3))
sketch4.addConstraint(Sketcher.Constraint("Vertical", 13, 3, 14, 3))
sketch4.addConstraint(Sketcher.Constraint("Vertical", 14, 3, 15, 3))
sketch4.addConstraint(Sketcher.Constraint("Vertical", 18, 3, 20, 3))
sketch4.addConstraint(Sketcher.Constraint("Vertical", 20, 3, 21, 3))
sketch4.addConstraint(Sketcher.Constraint("Diameter", 0, Q("10 mm")))
sketch4.addConstraint(Sketcher.Constraint("DistanceY", -1, 1, 0, 3, Q("24 mm")))
sketch4.addConstraint(Sketcher.Constraint("DistanceY", -1, 1, 2, 3, Q("30 mm")))
sketch4.addConstraint(Sketcher.Constraint("DistanceY", -1, 1, 3, 3, Q("18 mm")))
sketch4.addConstraint(Sketcher.Constraint("DistanceY", -1, 1, 4, 3, Q("12 mm")))
sketch4.addConstraint(Sketcher.Constraint("DistanceY", -1, 1, 6, 3, Q("6 mm")))
sketch4.addConstraint(Sketcher.Constraint("DistanceX", 0, 3, -1, 1, Q("42.4 mm")))
sketch4.addConstraint(Sketcher.Constraint("DistanceX", 2, 3, -1, 1, Q("31.8 mm")))
sketch4.addConstraint(Sketcher.Constraint("DistanceX", 13, 3, -1, 1, Q("21.2 mm")))
sketch4.addConstraint(Sketcher.Constraint("DistanceX", 18, 3, -1, 1, Q("10.6 mm")))
pocket2 = body.newObject("PartDesign::Pocket", "Pocket001")
pocket2.Profile = sketch4
pocket2.Type = "ThroughAll"
body2 = doc.addObject("PartDesign::Body", "Body001")

# Sketch on XY plane
sketch5 = body2.newObject("Sketcher::SketchObject", "Sketch004")
sketch5.AttachmentSupport = (doc.getObject("XY_Plane001"), [""])
sketch5.MapMode = "FlatFace"
sketch5.AttachmentOffset = App.Placement(App.Vector(0, 0, 4), App.Rotation())
sketch5.addGeometry(Part.ArcOfCircle(Part.Circle(App.Vector(42, 24, 0), App.Vector(0, 0, 1), 10), math.radians(0), math.radians(90)), False)
sketch5.addGeometry(Part.LineSegment(App.Vector(42, 34, 0), App.Vector(-42, 34, 0)), False)
sketch5.addGeometry(Part.ArcOfCircle(Part.Circle(App.Vector(-42, 24, 0), App.Vector(0, 0, 1), 10), math.radians(90), math.radians(180)), False)
sketch5.addGeometry(Part.LineSegment(App.Vector(-52, 24, 0), App.Vector(-52, -24, 0)), False)
sketch5.addGeometry(Part.ArcOfCircle(Part.Circle(App.Vector(-42, -24, 0), App.Vector(0, 0, 1), 10), math.radians(180), math.radians(270)), False)
sketch5.addGeometry(Part.LineSegment(App.Vector(-42, -34, 0), App.Vector(42, -34, 0)), False)
sketch5.addGeometry(Part.ArcOfCircle(Part.Circle(App.Vector(42, -24, 0), App.Vector(0, 0, 1), 10), math.radians(-90), math.radians(0)), False)
sketch5.addGeometry(Part.LineSegment(App.Vector(52, -24, 0), App.Vector(52, 24, 0)), False)
sketch5.addGeometry(Part.ArcOfCircle(Part.Circle(App.Vector(-42, 24, 0), App.Vector(0, 0, 1), 6), math.radians(90), math.radians(180)), False)
sketch5.addGeometry(Part.LineSegment(App.Vector(-42, 30, 0), App.Vector(42, 30, 0)), False)
sketch5.addGeometry(Part.ArcOfCircle(Part.Circle(App.Vector(42, 24, 0), App.Vector(0, 0, 1), 6), math.radians(0), math.radians(90)), False)
sketch5.addGeometry(Part.LineSegment(App.Vector(48, 24, 0), App.Vector(48, -24, 0)), False)
sketch5.addGeometry(Part.ArcOfCircle(Part.Circle(App.Vector(42, -24, 0), App.Vector(0, 0, 1), 6), math.radians(-90), math.radians(0)), False)
sketch5.addGeometry(Part.LineSegment(App.Vector(42, -30, 0), App.Vector(-42, -30, 0)), False)
sketch5.addGeometry(Part.ArcOfCircle(Part.Circle(App.Vector(-42, -24, 0), App.Vector(0, 0, 1), 6), math.radians(180), math.radians(270)), False)
sketch5.addGeometry(Part.LineSegment(App.Vector(-48, -24, 0), App.Vector(-48, 24, 0)), False)
sketch5.addConstraint(Sketcher.Constraint("Tangent", 0, 2, 1, 1))
sketch5.addConstraint(Sketcher.Constraint("Tangent", 1, 2, 2, 1))
sketch5.addConstraint(Sketcher.Constraint("Tangent", 2, 2, 3, 1))
sketch5.addConstraint(Sketcher.Constraint("Tangent", 3, 2, 4, 1))
sketch5.addConstraint(Sketcher.Constraint("Tangent", 4, 2, 5, 1))
sketch5.addConstraint(Sketcher.Constraint("Tangent", 5, 2, 6, 1))
sketch5.addConstraint(Sketcher.Constraint("Tangent", 6, 2, 7, 1))
sketch5.addConstraint(Sketcher.Constraint("Tangent", 7, 2, 0, 1))
sketch5.addConstraint(Sketcher.Constraint("Tangent", 8, 1, 9, 1))
sketch5.addConstraint(Sketcher.Constraint("Tangent", 9, 2, 10, 2))
sketch5.addConstraint(Sketcher.Constraint("Tangent", 10, 1, 11, 1))
sketch5.addConstraint(Sketcher.Constraint("Tangent", 11, 2, 12, 2))
sketch5.addConstraint(Sketcher.Constraint("Tangent", 12, 1, 13, 1))
sketch5.addConstraint(Sketcher.Constraint("Tangent", 13, 2, 14, 2))
sketch5.addConstraint(Sketcher.Constraint("Tangent", 14, 1, 15, 1))
sketch5.addConstraint(Sketcher.Constraint("Tangent", 15, 2, 8, 2))
sketch5.addConstraint(Sketcher.Constraint("Horizontal", 1))
sketch5.addConstraint(Sketcher.Constraint("Vertical", 3))
sketch5.addConstraint(Sketcher.Constraint("Horizontal", 5))
sketch5.addConstraint(Sketcher.Constraint("Vertical", 7))
sketch5.addConstraint(Sketcher.Constraint("Horizontal", 9))
sketch5.addConstraint(Sketcher.Constraint("Vertical", 11))
sketch5.addConstraint(Sketcher.Constraint("Horizontal", 13))
sketch5.addConstraint(Sketcher.Constraint("Vertical", 15))
sketch5.addConstraint(Sketcher.Constraint("Coincident", 8, 3, 2, 3))
sketch5.addConstraint(Sketcher.Constraint("Coincident", 10, 3, 0, 3))
sketch5.addConstraint(Sketcher.Constraint("Coincident", 12, 3, 6, 3))
sketch5.addConstraint(Sketcher.Constraint("Equal", 0, 2))
sketch5.addConstraint(Sketcher.Constraint("Equal", 2, 4))
sketch5.addConstraint(Sketcher.Constraint("Equal", 4, 6))
sketch5.addConstraint(Sketcher.Constraint("Equal", 12, 14))
sketch5.addConstraint(Sketcher.Constraint("Symmetric", 0, 3, 4, 3, -1, 1))
sketch5.addConstraint(Sketcher.Constraint("Radius", 0, Q("10 mm")))
sketch5.addConstraint(Sketcher.Constraint("Radius", 8, Q("6 mm")))
sketch5.addConstraint(Sketcher.Constraint("DistanceX", 1, 2, 1, 1, Q("83 mm")))
sketch5.addConstraint(Sketcher.Constraint("DistanceY", 3, 2, 3, 1, Q("48 mm")))
pad3 = body2.newObject("PartDesign::Pad", "Pad002")
pad3.Profile = sketch5
pad3.Length = 2
pad3.Reversed = True
body2.Visibility = False

doc.recompute()
